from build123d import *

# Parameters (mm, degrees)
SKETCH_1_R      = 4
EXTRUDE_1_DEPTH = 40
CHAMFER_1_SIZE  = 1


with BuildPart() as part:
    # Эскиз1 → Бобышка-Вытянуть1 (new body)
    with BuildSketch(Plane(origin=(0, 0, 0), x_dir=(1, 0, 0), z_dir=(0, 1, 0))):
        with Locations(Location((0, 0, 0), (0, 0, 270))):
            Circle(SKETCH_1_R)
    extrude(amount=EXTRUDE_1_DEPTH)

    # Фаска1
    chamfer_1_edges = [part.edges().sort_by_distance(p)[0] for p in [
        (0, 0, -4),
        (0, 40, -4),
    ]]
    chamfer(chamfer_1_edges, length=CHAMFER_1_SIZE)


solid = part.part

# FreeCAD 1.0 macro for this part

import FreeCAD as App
import Part
import Sketcher
from FreeCAD import Vector


def edges_at(feature, points):
    """Names of the edges that pass closest to the given points."""
    edges = feature.Shape.Edges
    near = lambda p: min(range(len(edges)), key=lambda i: edges[i].distToShape(Part.Vertex(*p))[0])
    return sorted({f"Edge{near(p) + 1}" for p in points})

doc = App.newDocument("Part")
body = doc.addObject("PartDesign::Body", "Body")

# Sketch on XZ plane
sketch1 = body.newObject("Sketcher::SketchObject", "Sketch")
sketch1.AttachmentSupport = (doc.getObject("XZ_Plane"), [""])
sketch1.MapMode = "FlatFace"
sketch1.addGeometry(Part.Circle(Vector(0, 0, 0), Vector(0, 0, 1), 4), False)
sketch1.addConstraint(Sketcher.Constraint("Coincident", 0, 3, -1, 1))
sketch1.addConstraint(Sketcher.Constraint("Diameter", 0, 8.0))
pad1 = body.newObject("PartDesign::Pad", "Pad")
pad1.Profile = sketch1
pad1.Length = 40
pad1.Reversed = True
doc.recompute()

chamfer = body.newObject("PartDesign::Chamfer", "Chamfer")
chamfer.Base = (pad1, edges_at(pad1, [(0, 0, -4), (0, 40, -4)]))
chamfer.Size = 1

doc.recompute()
